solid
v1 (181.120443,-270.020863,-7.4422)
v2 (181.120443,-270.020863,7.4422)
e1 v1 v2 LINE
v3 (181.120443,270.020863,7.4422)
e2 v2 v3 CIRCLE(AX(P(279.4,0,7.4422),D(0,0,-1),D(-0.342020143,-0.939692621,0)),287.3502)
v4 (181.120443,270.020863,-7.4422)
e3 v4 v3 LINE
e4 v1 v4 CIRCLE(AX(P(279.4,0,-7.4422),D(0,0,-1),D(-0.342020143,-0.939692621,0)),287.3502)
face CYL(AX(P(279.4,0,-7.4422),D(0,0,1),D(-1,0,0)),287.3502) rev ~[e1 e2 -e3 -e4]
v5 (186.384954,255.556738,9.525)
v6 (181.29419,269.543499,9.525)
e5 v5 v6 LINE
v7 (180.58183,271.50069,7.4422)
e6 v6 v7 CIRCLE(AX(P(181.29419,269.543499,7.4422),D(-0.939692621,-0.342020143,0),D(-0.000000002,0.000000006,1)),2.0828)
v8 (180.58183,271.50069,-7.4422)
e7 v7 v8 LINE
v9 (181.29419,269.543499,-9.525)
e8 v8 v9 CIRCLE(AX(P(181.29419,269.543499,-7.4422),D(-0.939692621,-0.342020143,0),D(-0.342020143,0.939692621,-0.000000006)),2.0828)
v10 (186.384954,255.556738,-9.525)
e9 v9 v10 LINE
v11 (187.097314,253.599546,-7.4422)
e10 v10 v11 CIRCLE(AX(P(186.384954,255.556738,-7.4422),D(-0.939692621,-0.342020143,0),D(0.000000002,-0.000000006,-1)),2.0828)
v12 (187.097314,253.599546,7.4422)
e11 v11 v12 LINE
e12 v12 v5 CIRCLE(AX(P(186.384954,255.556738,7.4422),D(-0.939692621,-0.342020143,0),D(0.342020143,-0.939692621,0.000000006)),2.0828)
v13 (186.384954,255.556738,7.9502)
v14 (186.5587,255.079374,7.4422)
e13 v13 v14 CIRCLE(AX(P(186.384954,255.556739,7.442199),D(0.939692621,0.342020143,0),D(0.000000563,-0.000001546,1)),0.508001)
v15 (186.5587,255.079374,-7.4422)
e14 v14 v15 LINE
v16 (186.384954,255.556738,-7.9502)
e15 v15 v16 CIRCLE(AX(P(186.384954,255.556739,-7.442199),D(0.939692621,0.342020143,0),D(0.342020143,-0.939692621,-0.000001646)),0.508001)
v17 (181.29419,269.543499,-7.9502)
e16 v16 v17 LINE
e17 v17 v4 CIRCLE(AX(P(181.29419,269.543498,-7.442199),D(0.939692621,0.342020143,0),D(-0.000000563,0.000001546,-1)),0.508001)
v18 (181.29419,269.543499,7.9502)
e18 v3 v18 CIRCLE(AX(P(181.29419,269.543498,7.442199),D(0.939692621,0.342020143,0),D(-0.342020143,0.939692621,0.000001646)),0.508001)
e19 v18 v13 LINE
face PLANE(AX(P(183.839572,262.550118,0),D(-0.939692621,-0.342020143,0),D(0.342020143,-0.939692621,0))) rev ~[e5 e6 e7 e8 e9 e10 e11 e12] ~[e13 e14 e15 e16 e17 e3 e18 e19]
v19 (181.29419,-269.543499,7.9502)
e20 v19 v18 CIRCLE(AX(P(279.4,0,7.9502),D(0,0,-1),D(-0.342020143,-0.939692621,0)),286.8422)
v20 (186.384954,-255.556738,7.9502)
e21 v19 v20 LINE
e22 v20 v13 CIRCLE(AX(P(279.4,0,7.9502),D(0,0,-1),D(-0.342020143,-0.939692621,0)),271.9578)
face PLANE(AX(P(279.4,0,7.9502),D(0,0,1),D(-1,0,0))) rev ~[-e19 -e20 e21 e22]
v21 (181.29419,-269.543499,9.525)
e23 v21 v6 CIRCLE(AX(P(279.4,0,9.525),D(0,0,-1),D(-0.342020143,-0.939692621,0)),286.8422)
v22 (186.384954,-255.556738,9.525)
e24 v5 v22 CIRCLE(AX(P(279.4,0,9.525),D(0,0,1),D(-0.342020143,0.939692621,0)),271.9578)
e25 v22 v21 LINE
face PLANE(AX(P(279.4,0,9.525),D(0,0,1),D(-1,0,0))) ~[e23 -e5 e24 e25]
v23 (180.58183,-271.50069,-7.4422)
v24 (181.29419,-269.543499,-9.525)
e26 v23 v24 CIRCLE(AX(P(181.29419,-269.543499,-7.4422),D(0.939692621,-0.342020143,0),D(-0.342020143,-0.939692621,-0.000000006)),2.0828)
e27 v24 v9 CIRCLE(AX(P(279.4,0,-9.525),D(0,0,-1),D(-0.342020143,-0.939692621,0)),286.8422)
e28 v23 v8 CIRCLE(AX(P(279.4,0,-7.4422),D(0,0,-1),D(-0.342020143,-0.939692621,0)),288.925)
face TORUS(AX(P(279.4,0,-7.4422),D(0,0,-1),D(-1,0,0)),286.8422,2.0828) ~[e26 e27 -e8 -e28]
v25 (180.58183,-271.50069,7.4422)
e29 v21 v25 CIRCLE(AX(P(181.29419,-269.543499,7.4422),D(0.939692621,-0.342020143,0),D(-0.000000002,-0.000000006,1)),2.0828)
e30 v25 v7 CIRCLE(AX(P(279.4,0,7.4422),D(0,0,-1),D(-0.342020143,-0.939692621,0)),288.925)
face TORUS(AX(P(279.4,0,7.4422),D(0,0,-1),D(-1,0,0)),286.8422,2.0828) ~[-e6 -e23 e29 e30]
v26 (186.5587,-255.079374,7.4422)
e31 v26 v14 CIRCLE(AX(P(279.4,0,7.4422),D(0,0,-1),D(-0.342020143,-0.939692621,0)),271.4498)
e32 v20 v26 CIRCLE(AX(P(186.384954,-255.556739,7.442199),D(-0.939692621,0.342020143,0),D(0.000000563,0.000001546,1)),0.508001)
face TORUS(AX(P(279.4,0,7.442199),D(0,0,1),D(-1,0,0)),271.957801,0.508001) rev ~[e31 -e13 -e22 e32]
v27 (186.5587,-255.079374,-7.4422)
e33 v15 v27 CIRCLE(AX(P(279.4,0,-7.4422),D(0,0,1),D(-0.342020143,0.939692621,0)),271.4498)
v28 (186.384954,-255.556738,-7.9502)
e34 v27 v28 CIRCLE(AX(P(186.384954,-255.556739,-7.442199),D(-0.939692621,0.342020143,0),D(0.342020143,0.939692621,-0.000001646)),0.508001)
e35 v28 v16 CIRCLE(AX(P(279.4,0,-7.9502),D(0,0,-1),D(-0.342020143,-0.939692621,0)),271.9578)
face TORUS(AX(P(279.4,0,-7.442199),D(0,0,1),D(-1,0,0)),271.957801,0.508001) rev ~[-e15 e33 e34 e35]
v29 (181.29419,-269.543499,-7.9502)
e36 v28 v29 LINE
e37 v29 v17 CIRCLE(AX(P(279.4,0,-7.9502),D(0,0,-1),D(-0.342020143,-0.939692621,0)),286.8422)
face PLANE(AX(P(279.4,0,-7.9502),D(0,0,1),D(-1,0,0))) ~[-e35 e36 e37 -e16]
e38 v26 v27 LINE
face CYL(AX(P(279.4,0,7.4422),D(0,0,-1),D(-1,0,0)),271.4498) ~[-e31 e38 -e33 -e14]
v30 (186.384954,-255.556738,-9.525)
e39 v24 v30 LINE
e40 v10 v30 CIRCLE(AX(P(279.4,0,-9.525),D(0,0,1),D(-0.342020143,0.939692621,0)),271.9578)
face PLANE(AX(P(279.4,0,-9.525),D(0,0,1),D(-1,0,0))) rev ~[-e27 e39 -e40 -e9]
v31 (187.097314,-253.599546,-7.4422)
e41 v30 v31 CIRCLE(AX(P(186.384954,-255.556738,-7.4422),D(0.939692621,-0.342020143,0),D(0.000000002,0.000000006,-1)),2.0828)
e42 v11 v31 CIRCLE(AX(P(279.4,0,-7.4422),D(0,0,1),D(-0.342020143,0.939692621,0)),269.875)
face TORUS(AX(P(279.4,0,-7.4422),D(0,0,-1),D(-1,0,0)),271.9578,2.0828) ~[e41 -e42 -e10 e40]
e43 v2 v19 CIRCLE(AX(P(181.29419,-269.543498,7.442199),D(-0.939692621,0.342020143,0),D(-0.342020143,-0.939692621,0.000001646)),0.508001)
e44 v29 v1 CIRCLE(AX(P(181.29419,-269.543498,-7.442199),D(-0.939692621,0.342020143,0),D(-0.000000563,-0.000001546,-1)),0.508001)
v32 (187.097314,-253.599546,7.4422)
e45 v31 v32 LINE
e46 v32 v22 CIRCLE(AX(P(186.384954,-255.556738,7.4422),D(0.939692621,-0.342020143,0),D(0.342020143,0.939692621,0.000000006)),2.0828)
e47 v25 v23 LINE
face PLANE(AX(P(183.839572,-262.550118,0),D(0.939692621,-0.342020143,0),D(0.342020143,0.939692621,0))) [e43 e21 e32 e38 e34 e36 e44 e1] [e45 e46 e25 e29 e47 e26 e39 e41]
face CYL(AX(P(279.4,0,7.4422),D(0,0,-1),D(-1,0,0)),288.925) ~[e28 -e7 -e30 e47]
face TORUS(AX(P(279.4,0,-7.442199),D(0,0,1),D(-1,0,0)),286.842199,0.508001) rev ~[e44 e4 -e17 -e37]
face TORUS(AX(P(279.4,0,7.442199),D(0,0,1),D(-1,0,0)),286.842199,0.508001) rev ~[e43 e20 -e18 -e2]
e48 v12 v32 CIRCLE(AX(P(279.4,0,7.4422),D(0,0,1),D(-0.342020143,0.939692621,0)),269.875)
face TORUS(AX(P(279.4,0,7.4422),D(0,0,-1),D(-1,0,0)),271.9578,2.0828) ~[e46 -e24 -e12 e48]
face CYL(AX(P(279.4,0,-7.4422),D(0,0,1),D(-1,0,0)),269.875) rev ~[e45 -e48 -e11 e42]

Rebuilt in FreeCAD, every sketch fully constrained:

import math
import FreeCAD as App
import Part
import Sketcher
from FreeCAD import Vector
Q = App.Units.Quantity

doc = App.newDocument("Part")
body = doc.addObject("PartDesign::Body", "Body")

# Sketch on XZ plane
sketch1 = doc.addObject("Sketcher::SketchObject", "Sketch")
body.addObject(sketch1)
sketch1.AttachmentSupport = (doc.XZ_Plane, [""])
sketch1.MapMode = "FlatFace"
sketch1.addGeometry(Part.LineSegment(Vector(-7.4, -9.5, 0), Vector(7.4, -9.5, 0)), False)
sketch1.addGeometry(Part.ArcOfCircle(Part.Circle(Vector(7.4, -7.4, 0), Vector(0, 0, 1), 2.1), math.radians(-90), math.radians(0)), False)
sketch1.addGeometry(Part.LineSegment(Vector(9.5, -7.4, 0), Vector(9.5, 7.4, 0)), False)
sketch1.addGeometry(Part.ArcOfCircle(Part.Circle(Vector(7.4, 7.4, 0), Vector(0, 0, 1), 2.1), math.radians(0), math.radians(90)), False)
sketch1.addGeometry(Part.LineSegment(Vector(7.4, 9.5, 0), Vector(-7.4, 9.5, 0)), False)
sketch1.addGeometry(Part.ArcOfCircle(Part.Circle(Vector(-7.4, 7.4, 0), Vector(0, 0, 1), 2.1), math.radians(90), math.radians(180)), False)
sketch1.addGeometry(Part.LineSegment(Vector(-9.5, 7.4, 0), Vector(-9.5, -7.4, 0)), False)
sketch1.addGeometry(Part.ArcOfCircle(Part.Circle(Vector(-7.4, -7.4, 0), Vector(0, 0, 1), 2.1), math.radians(-180), math.radians(-90)), False)
sketch1.addGeometry(Part.LineSegment(Vector(8, 7.4, 0), Vector(8, -7.4, 0)), False)
sketch1.addGeometry(Part.ArcOfCircle(Part.Circle(Vector(7.4, -7.4, 0), Vector(0, 0, 1), 0.5), math.radians(-90), math.radians(0)), False)
sketch1.addGeometry(Part.LineSegment(Vector(7.4, -8, 0), Vector(-7.4, -8, 0)), False)
sketch1.addGeometry(Part.ArcOfCircle(Part.Circle(Vector(-7.4, -7.4, 0), Vector(0, 0, 1), 0.5), math.radians(-180), math.radians(-90)), False)
sketch1.addGeometry(Part.LineSegment(Vector(-8, -7.4, 0), Vector(-8, 7.4, 0)), False)
sketch1.addGeometry(Part.ArcOfCircle(Part.Circle(Vector(-7.4, 7.4, 0), Vector(0, 0, 1), 0.5), math.radians(90), math.radians(180)), False)
sketch1.addGeometry(Part.LineSegment(Vector(-7.4, 8, 0), Vector(7.4, 8, 0)), False)
sketch1.addGeometry(Part.ArcOfCircle(Part.Circle(Vector(7.4, 7.4, 0), Vector(0, 0, 1), 0.5), math.radians(0), math.radians(90)), False)
sketch1.addGeometry(Part.LineSegment(Vector(279.4, 9.5, 0), Vector(279.4, -9.5, 0)), True)  # axis
sketch1.addConstraint(Sketcher.Constraint("Tangent", 0, 2, 1, 1))
sketch1.addConstraint(Sketcher.Constraint("Tangent", 1, 2, 2, 1))
sketch1.addConstraint(Sketcher.Constraint("Tangent", 2, 2, 3, 1))
sketch1.addConstraint(Sketcher.Constraint("Tangent", 3, 2, 4, 1))
sketch1.addConstraint(Sketcher.Constraint("Tangent", 4, 2, 5, 1))
sketch1.addConstraint(Sketcher.Constraint("Tangent", 5, 2, 6, 1))
sketch1.addConstraint(Sketcher.Constraint("Tangent", 6, 2, 7, 1))
sketch1.addConstraint(Sketcher.Constraint("Tangent", 7, 2, 0, 1))
sketch1.addConstraint(Sketcher.Constraint("Tangent", 8, 2, 9, 2))
sketch1.addConstraint(Sketcher.Constraint("Tangent", 9, 1, 10, 1))
sketch1.addConstraint(Sketcher.Constraint("Tangent", 10, 2, 11, 2))
sketch1.addConstraint(Sketcher.Constraint("Tangent", 11, 1, 12, 1))
sketch1.addConstraint(Sketcher.Constraint("Tangent", 12, 2, 13, 2))
sketch1.addConstraint(Sketcher.Constraint("Tangent", 13, 1, 14, 1))
sketch1.addConstraint(Sketcher.Constraint("Tangent", 14, 2, 15, 2))
sketch1.addConstraint(Sketcher.Constraint("Tangent", 15, 1, 8, 1))
sketch1.addConstraint(Sketcher.Constraint("Horizontal", 0))
sketch1.addConstraint(Sketcher.Constraint("Vertical", 2))
sketch1.addConstraint(Sketcher.Constraint("Horizontal", 4))
sketch1.addConstraint(Sketcher.Constraint("Vertical", 6))
sketch1.addConstraint(Sketcher.Constraint("Vertical", 8))
sketch1.addConstraint(Sketcher.Constraint("Horizontal", 10))
sketch1.addConstraint(Sketcher.Constraint("Vertical", 12))
sketch1.addConstraint(Sketcher.Constraint("Horizontal", 14))
sketch1.addConstraint(Sketcher.Constraint("Vertical", 16))
sketch1.addConstraint(Sketcher.Constraint("Coincident", 9, 3, 1, 3))
sketch1.addConstraint(Sketcher.Constraint("Coincident", 11, 3, 7, 3))
sketch1.addConstraint(Sketcher.Constraint("Coincident", 13, 3, 5, 3))
sketch1.addConstraint(Sketcher.Constraint("Equal", 1, 3))
sketch1.addConstraint(Sketcher.Constraint("Equal", 3, 5))
sketch1.addConstraint(Sketcher.Constraint("Equal", 5, 7))
sketch1.addConstraint(Sketcher.Constraint("Equal", 13, 15))
sketch1.addConstraint(Sketcher.Constraint("Symmetric", 1, 3, 5, 3, -1, 1))
sketch1.addConstraint(Sketcher.Constraint("Horizontal", 4, 2, 16, 1))
sketch1.addConstraint(Sketcher.Constraint("Horizontal", 7, 2, 16, 2))
sketch1.addConstraint(Sketcher.Constraint("Equal", 14, 2))
sketch1.addConstraint(Sketcher.Constraint("Radius", 9, Q("0.02 in")))
sketch1.addConstraint(Sketcher.Constraint("DistanceX", -1, 1, 16, 1, Q("11 in")))
sketch1.addConstraint(Sketcher.Constraint("Radius", 1, Q("0.082 in")))
sketch1.addConstraint(Sketcher.Constraint("DistanceY", 16, 2, 16, 1, Q("0.75 in")))
revolution = doc.addObject("PartDesign::Revolution", "Revolution")
body.addObject(revolution)
revolution.Profile = sketch1
revolution.ReferenceAxis = (sketch1, ["Axis0"])
revolution.Angle = 70

# Sketch on XZ plane
sketch2 = doc.addObject("Sketcher::SketchObject", "Sketch001")
body.addObject(sketch2)
sketch2.AttachmentSupport = (doc.XZ_Plane, [""])
sketch2.MapMode = "FlatFace"
sketch2.addGeometry(Part.LineSegment(Vector(-7.4, -9.5, 0), Vector(7.4, -9.5, 0)), False)
sketch2.addGeometry(Part.ArcOfCircle(Part.Circle(Vector(7.4, -7.4, 0), Vector(0, 0, 1), 2.1), math.radians(-90), math.radians(0)), False)
sketch2.addGeometry(Part.LineSegment(Vector(9.5, -7.4, 0), Vector(9.5, 7.4, 0)), False)
sketch2.addGeometry(Part.ArcOfCircle(Part.Circle(Vector(7.4, 7.4, 0), Vector(0, 0, 1), 2.1), math.radians(0), math.radians(90)), False)
sketch2.addGeometry(Part.LineSegment(Vector(7.4, 9.5, 0), Vector(-7.4, 9.5, 0)), False)
sketch2.addGeometry(Part.ArcOfCircle(Part.Circle(Vector(-7.4, 7.4, 0), Vector(0, 0, 1), 2.1), math.radians(90), math.radians(180)), False)
sketch2.addGeometry(Part.LineSegment(Vector(-9.5, 7.4, 0), Vector(-9.5, -7.4, 0)), False)
sketch2.addGeometry(Part.ArcOfCircle(Part.Circle(Vector(-7.4, -7.4, 0), Vector(0, 0, 1), 2.1), math.radians(-180), math.radians(-90)), False)
sketch2.addGeometry(Part.LineSegment(Vector(8, 7.4, 0), Vector(8, -7.4, 0)), False)
sketch2.addGeometry(Part.ArcOfCircle(Part.Circle(Vector(7.4, -7.4, 0), Vector(0, 0, 1), 0.5), math.radians(-90), math.radians(0)), False)
sketch2.addGeometry(Part.LineSegment(Vector(7.4, -8, 0), Vector(-7.4, -8, 0)), False)
sketch2.addGeometry(Part.ArcOfCircle(Part.Circle(Vector(-7.4, -7.4, 0), Vector(0, 0, 1), 0.5), math.radians(-180), math.radians(-90)), False)
sketch2.addGeometry(Part.LineSegment(Vector(-8, -7.4, 0), Vector(-8, 7.4, 0)), False)
sketch2.addGeometry(Part.ArcOfCircle(Part.Circle(Vector(-7.4, 7.4, 0), Vector(0, 0, 1), 0.5), math.radians(90), math.radians(180)), False)
sketch2.addGeometry(Part.LineSegment(Vector(-7.4, 8, 0), Vector(7.4, 8, 0)), False)
sketch2.addGeometry(Part.ArcOfCircle(Part.Circle(Vector(7.4, 7.4, 0), Vector(0, 0, 1), 0.5), math.radians(0), math.radians(90)), False)
sketch2.addGeometry(Part.LineSegment(Vector(279.4, -9.5, 0), Vector(279.4, 9.5, 0)), True)  # axis
sketch2.addConstraint(Sketcher.Constraint("Tangent", 0, 2, 1, 1))
sketch2.addConstraint(Sketcher.Constraint("Tangent", 1, 2, 2, 1))
sketch2.addConstraint(Sketcher.Constraint("Tangent", 2, 2, 3, 1))
sketch2.addConstraint(Sketcher.Constraint("Tangent", 3, 2, 4, 1))
sketch2.addConstraint(Sketcher.Constraint("Tangent", 4, 2, 5, 1))
sketch2.addConstraint(Sketcher.Constraint("Tangent", 5, 2, 6, 1))
sketch2.addConstraint(Sketcher.Constraint("Tangent", 6, 2, 7, 1))
sketch2.addConstraint(Sketcher.Constraint("Tangent", 7, 2, 0, 1))
sketch2.addConstraint(Sketcher.Constraint("Tangent", 8, 2, 9, 2))
sketch2.addConstraint(Sketcher.Constraint("Tangent", 9, 1, 10, 1))
sketch2.addConstraint(Sketcher.Constraint("Tangent", 10, 2, 11, 2))
sketch2.addConstraint(Sketcher.Constraint("Tangent", 11, 1, 12, 1))
sketch2.addConstraint(Sketcher.Constraint("Tangent", 12, 2, 13, 2))
sketch2.addConstraint(Sketcher.Constraint("Tangent", 13, 1, 14, 1))
sketch2.addConstraint(Sketcher.Constraint("Tangent", 14, 2, 15, 2))
sketch2.addConstraint(Sketcher.Constraint("Tangent", 15, 1, 8, 1))
sketch2.addConstraint(Sketcher.Constraint("Horizontal", 0))
sketch2.addConstraint(Sketcher.Constraint("Vertical", 2))
sketch2.addConstraint(Sketcher.Constraint("Horizontal", 4))
sketch2.addConstraint(Sketcher.Constraint("Vertical", 6))
sketch2.addConstraint(Sketcher.Constraint("Vertical", 8))
sketch2.addConstraint(Sketcher.Constraint("Horizontal", 10))
sketch2.addConstraint(Sketcher.Constraint("Vertical", 12))
sketch2.addConstraint(Sketcher.Constraint("Horizontal", 14))
sketch2.addConstraint(Sketcher.Constraint("Vertical", 16))
sketch2.addConstraint(Sketcher.Constraint("Coincident", 9, 3, 1, 3))
sketch2.addConstraint(Sketcher.Constraint("Coincident", 11, 3, 7, 3))
sketch2.addConstraint(Sketcher.Constraint("Coincident", 13, 3, 5, 3))
sketch2.addConstraint(Sketcher.Constraint("Equal", 1, 3))
sketch2.addConstraint(Sketcher.Constraint("Equal", 3, 5))
sketch2.addConstraint(Sketcher.Constraint("Equal", 5, 7))
sketch2.addConstraint(Sketcher.Constraint("Equal", 13, 15))
sketch2.addConstraint(Sketcher.Constraint("Symmetric", 1, 3, 5, 3, -1, 1))
sketch2.addConstraint(Sketcher.Constraint("Horizontal", 7, 2, 16, 1))
sketch2.addConstraint(Sketcher.Constraint("Horizontal", 4, 2, 16, 2))
sketch2.addConstraint(Sketcher.Constraint("Equal", 14, 2))
sketch2.addConstraint(Sketcher.Constraint("Radius", 9, Q("0.02 in")))
sketch2.addConstraint(Sketcher.Constraint("DistanceX", -1, 1, 16, 1, Q("11 in")))
sketch2.addConstraint(Sketcher.Constraint("Radius", 1, Q("0.082 in")))
sketch2.addConstraint(Sketcher.Constraint("DistanceY", 16, 1, 16, 2, Q("0.75 in")))
revolution2 = doc.addObject("PartDesign::Revolution", "Revolution001")
body.addObject(revolution2)
revolution2.Profile = sketch2
revolution2.ReferenceAxis = (sketch2, ["Axis0"])
revolution2.Angle = 70

doc.recompute()
